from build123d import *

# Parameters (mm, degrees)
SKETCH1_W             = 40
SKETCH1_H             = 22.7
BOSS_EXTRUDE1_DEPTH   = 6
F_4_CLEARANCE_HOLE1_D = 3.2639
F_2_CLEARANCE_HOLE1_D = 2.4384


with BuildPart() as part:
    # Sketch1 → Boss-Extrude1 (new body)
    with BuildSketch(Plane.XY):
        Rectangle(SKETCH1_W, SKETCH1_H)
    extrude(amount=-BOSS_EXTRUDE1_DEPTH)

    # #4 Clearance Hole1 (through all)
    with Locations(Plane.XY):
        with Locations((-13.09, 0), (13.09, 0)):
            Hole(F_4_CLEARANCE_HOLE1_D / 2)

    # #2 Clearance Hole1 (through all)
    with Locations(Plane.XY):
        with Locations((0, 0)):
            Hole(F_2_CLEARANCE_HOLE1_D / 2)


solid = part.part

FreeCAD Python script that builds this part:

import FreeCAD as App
import Part
import Sketcher
from FreeCAD import Vector

doc = App.newDocument("Part")
params = doc.addObject("Spreadsheet::Sheet", "Params")
for row, (alias, value) in enumerate([
    ("sketch1_width", "40 mm"),
    ("sketch1_height", "22.7 mm"),
    ("pad1_length", "6 mm"),
    ("hole_diameter", "3.2639 mm"),
    ("hole2_diameter", "2.4384 mm"),
], start=1):
    params.set(f"A{row}", alias)
    params.set(f"B{row}", "=" + value)
    params.setAlias(f"B{row}", alias)

body = doc.addObject("PartDesign::Body", "Body")

sketch1 = doc.addObject("Sketcher::SketchObject", "Sketch")
body.addObject(sketch1)
sketch1.AttachmentSupport = (doc.XY_Plane, [""])
sketch1.MapMode = "FlatFace"
sketch1.addGeometry(Part.LineSegment(Vector(-20, 11, 0), Vector(-20, -11, 0)), False)
sketch1.addGeometry(Part.LineSegment(Vector(-20, -11, 0), Vector(20, -11, 0)), False)
sketch1.addGeometry(Part.LineSegment(Vector(20, -11, 0), Vector(20, 11, 0)), False)
sketch1.addGeometry(Part.LineSegment(Vector(20, 11, 0), Vector(-20, 11, 0)), False)
sketch1.addConstraint(Sketcher.Constraint("Coincident", 0, 2, 1, 1))
sketch1.addConstraint(Sketcher.Constraint("Coincident", 1, 2, 2, 1))
sketch1.addConstraint(Sketcher.Constraint("Coincident", 2, 2, 3, 1))
sketch1.addConstraint(Sketcher.Constraint("Coincident", 3, 2, 0, 1))
sketch1.addConstraint(Sketcher.Constraint("Vertical", 0))
sketch1.addConstraint(Sketcher.Constraint("Horizontal", 1))
sketch1.addConstraint(Sketcher.Constraint("Vertical", 2))
sketch1.addConstraint(Sketcher.Constraint("Horizontal", 3))
sketch1.addConstraint(Sketcher.Constraint("Symmetric", 0, 2, 2, 2, -1, 1))
sketch1.addConstraint(Sketcher.Constraint("DistanceX", 1, 1, 1, 2, 40.0))
sketch1.addConstraint(Sketcher.Constraint("DistanceY", 0, 2, 0, 1, 22.7))
sketch1.setExpression("Constraints[9]", "Params.sketch1_width")
sketch1.setExpression("Constraints[10]", "Params.sketch1_height")
pad1 = doc.addObject("PartDesign::Pad", "Pad")
body.addObject(pad1)
pad1.Profile = sketch1
pad1.setExpression("Length", "Params.pad1_length")
pad1.Reversed = True

sketch2 = doc.addObject("Sketcher::SketchObject", "Sketch001")
body.addObject(sketch2)
sketch2.AttachmentSupport = (doc.XY_Plane, [""])
sketch2.MapMode = "FlatFace"
sketch2.addGeometry(Part.Circle(Vector(-13.1, 0, 0), Vector(0, 0, 1), 1.6), False)
sketch2.addGeometry(Part.Circle(Vector(13.1, 0, 0), Vector(0, 0, 1), 1.6), False)
sketch2.addConstraint(Sketcher.Constraint("Equal", 0, 1))
sketch2.addConstraint(Sketcher.Constraint("Symmetric", 0, 3, 1, 3, -1, 1))
sketch2.addConstraint(Sketcher.Constraint("PointOnObject", 0, 3, -1))
sketch2.addConstraint(Sketcher.Constraint("Diameter", 0, 3.2639))
sketch2.addConstraint(Sketcher.Constraint("DistanceX", 0, 3, -1, 1, 13.09))
doc.recompute()
hole = doc.addObject("PartDesign::Hole", "Hole")
body.addObject(hole)
hole.Profile = sketch2
hole.ThreadType = "None"
hole.setExpression("Diameter", "Params.hole_diameter")
hole.DepthType = "ThroughAll"

sketch3 = doc.addObject("Sketcher::SketchObject", "Sketch002")
body.addObject(sketch3)
sketch3.AttachmentSupport = (doc.XY_Plane, [""])
sketch3.MapMode = "FlatFace"
sketch3.addGeometry(Part.Circle(Vector(0, 0, 0), Vector(0, 0, 1), 1.2), False)
sketch3.addConstraint(Sketcher.Constraint("Coincident", 0, 3, -1, 1))
sketch3.addConstraint(Sketcher.Constraint("Diameter", 0, 2.4384))
doc.recompute()
hole2 = doc.addObject("PartDesign::Hole", "Hole001")
body.addObject(hole2)
hole2.Profile = sketch3
hole2.ThreadType = "None"
hole2.setExpression("Diameter", "Params.hole2_diameter")
hole2.DepthType = "ThroughAll"

doc.recompute()
